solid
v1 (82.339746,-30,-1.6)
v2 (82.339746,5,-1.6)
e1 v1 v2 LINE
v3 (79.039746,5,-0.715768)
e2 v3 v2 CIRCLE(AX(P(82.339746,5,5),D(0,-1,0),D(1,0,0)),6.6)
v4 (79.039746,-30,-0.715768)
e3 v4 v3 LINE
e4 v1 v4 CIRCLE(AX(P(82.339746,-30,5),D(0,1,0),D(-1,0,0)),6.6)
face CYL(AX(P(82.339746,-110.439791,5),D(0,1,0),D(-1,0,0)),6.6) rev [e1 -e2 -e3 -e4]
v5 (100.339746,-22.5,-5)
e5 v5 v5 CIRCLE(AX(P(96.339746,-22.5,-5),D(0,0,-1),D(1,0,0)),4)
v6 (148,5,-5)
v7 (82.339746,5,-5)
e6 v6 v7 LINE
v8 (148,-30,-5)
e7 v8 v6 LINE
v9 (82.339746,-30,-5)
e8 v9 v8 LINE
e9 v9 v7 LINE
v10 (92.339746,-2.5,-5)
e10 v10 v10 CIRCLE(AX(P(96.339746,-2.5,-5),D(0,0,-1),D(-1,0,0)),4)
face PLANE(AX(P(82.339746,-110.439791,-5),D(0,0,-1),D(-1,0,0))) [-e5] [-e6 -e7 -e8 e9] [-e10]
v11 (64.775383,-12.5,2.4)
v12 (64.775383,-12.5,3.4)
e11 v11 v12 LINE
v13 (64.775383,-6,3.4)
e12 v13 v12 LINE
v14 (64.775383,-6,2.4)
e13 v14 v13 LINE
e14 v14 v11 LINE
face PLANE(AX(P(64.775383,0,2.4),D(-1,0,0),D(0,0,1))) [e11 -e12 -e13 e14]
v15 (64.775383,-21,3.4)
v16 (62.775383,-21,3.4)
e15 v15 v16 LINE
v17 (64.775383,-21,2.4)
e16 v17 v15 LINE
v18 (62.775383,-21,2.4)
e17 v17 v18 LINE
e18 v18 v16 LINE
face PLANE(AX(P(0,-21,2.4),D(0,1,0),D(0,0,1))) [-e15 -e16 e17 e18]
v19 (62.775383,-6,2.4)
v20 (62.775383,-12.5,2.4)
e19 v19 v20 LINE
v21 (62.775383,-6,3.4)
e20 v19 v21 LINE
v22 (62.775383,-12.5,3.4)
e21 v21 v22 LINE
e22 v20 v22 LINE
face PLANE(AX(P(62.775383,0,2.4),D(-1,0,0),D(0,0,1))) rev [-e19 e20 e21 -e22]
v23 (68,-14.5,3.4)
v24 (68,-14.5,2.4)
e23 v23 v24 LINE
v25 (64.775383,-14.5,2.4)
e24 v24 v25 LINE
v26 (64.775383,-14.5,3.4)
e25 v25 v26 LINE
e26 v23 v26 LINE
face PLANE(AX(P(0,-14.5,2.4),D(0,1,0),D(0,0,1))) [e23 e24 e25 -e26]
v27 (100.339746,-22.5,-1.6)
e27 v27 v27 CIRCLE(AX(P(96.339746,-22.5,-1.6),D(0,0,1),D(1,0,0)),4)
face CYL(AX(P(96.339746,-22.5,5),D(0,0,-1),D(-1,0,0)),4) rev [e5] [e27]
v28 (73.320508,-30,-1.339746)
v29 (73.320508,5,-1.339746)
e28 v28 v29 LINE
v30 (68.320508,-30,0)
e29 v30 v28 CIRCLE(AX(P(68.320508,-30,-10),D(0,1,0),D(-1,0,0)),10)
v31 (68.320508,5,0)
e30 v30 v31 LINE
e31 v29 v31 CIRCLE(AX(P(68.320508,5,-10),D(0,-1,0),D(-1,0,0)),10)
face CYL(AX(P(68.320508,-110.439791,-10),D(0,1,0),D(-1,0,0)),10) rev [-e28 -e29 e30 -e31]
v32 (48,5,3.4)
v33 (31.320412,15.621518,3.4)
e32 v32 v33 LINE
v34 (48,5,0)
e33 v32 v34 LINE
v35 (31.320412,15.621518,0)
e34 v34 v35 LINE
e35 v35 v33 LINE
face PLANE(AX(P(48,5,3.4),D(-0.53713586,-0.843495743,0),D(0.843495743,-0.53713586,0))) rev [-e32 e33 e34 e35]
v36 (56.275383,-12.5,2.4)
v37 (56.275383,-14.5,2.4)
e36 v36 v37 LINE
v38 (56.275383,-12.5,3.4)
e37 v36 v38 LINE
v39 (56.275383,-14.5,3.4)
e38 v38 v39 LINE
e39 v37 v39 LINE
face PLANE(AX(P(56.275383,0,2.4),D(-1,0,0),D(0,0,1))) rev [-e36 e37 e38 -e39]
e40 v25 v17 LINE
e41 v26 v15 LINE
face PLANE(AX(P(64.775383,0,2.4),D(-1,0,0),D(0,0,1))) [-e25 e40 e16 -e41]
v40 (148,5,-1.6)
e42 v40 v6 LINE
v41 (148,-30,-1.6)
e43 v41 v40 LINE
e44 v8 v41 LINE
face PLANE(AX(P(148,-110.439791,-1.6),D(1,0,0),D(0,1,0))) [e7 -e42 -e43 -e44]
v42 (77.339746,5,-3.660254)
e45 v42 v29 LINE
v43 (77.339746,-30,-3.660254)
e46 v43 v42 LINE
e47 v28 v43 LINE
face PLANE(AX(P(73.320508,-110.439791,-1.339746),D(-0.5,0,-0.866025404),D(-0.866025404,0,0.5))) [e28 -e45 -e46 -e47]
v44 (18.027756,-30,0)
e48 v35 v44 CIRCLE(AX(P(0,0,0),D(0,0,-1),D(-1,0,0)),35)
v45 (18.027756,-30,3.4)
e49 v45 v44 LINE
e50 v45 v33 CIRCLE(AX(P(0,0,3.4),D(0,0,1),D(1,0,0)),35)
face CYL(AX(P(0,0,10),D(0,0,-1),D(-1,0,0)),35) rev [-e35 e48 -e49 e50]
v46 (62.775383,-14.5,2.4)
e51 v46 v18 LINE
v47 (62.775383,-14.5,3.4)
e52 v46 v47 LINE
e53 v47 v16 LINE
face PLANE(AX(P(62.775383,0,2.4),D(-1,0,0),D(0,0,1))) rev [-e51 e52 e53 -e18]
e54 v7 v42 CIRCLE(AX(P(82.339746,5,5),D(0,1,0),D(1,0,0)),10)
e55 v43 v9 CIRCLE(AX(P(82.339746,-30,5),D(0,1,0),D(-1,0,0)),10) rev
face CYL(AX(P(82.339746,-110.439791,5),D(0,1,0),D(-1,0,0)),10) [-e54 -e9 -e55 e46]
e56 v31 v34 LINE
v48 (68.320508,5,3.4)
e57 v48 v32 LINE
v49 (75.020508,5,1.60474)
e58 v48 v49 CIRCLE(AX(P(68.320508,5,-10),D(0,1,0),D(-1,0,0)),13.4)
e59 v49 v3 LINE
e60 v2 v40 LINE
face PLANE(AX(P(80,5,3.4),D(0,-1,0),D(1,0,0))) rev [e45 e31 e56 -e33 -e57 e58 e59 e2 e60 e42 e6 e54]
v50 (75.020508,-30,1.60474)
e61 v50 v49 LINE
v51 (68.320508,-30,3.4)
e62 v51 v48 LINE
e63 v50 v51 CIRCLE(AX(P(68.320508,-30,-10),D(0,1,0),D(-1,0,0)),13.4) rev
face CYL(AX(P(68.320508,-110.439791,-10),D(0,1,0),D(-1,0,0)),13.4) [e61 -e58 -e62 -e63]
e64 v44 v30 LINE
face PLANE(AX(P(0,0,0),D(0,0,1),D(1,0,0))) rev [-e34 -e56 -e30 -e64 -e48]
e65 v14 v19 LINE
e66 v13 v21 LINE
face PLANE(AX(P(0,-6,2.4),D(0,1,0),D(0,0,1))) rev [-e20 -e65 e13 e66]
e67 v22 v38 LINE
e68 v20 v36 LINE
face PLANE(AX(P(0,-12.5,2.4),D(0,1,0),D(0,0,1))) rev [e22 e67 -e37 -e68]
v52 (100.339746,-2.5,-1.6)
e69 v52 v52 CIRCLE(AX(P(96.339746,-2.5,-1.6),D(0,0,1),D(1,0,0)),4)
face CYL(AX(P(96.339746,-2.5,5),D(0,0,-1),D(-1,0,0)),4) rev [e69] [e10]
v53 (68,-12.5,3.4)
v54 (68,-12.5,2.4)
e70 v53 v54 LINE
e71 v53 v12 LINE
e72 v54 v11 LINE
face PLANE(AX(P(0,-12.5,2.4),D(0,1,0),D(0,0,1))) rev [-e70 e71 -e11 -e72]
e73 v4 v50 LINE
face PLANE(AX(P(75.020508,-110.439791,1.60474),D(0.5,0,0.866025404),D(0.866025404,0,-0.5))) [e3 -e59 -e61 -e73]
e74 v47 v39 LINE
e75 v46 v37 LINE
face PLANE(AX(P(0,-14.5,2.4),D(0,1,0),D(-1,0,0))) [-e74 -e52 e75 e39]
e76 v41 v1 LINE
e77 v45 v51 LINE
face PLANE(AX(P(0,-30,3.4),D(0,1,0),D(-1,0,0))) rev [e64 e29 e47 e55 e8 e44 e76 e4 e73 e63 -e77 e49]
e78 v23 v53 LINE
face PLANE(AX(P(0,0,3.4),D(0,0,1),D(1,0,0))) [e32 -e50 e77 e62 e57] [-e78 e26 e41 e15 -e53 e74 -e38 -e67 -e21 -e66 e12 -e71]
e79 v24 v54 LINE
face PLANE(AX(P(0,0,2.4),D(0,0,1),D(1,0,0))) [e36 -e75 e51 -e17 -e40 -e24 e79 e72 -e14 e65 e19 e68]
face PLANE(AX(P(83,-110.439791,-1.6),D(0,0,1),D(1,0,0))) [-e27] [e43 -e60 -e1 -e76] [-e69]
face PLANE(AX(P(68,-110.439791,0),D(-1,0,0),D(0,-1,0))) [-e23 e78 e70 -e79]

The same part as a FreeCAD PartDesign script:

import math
import FreeCAD as App
import Part
import Sketcher
from FreeCAD import Vector
Q = App.Units.Quantity

doc = App.newDocument("Part")
body = doc.addObject("PartDesign::Body", "Body")

# Sketch on XY plane
sketch1 = doc.addObject("Sketcher::SketchObject", "Sketch")
body.addObject(sketch1)
sketch1.AttachmentSupport = (doc.XY_Plane, [""])
sketch1.MapMode = "FlatFace"
sketch1.addGeometry([
    Part.LineSegment(Vector(0, -30, 0), Vector(80, -30, 0)),  # 0
    Part.LineSegment(Vector(80, -30, 0), Vector(80, 5, 0)),  # 1
    Part.LineSegment(Vector(80, 5, 0), Vector(48, 5, 0)),  # 2
    Part.LineSegment(Vector(48, 5, 0), Vector(16, 25, 0)),  # 3
    Part.ArcOfCircle(Part.Circle(Vector(0, 0, 0), Vector(0, 0, 1), 30), math.radians(58), math.radians(270)),  # 4
], False)
sketch1.addConstraint([
    Sketcher.Constraint("Coincident", 0, 2, 1, 1),
    Sketcher.Constraint("Coincident", 1, 2, 2, 1),
    Sketcher.Constraint("Coincident", 2, 2, 3, 1),
    Sketcher.Constraint("Tangent", 3, 2, 4, 1),
    Sketcher.Constraint("Tangent", 4, 2, 0, 1),
    Sketcher.Constraint("Horizontal", 0),
    Sketcher.Constraint("Vertical", 1),
    Sketcher.Constraint("Horizontal", 2),
    Sketcher.Constraint("Coincident", 4, 3, -1, 1),
    Sketcher.Constraint("Radius", 4, 30.0),
    Sketcher.Constraint("DistanceX", 0, 1, 0, 2, 80.0),
    Sketcher.Constraint("DistanceX", 2, 2, 2, 1, 32.0),
    Sketcher.Constraint("DistanceY", 1, 1, 1, 2, 35.0),
])
pad1 = doc.addObject("PartDesign::Pad", "Pad")
body.addObject(pad1)
pad1.Profile = sketch1
pad1.Length = 3.4

# Sketch on XY plane
sketch2 = doc.addObject("Sketcher::SketchObject", "Sketch001")
body.addObject(sketch2)
sketch2.AttachmentSupport = (doc.XY_Plane, [""])
sketch2.MapMode = "FlatFace"
sketch2.AttachmentOffset = App.Placement(Vector(0, 0, 3.4), App.Rotation())
sketch2.addGeometry(Part.Circle(Vector(0, 0, 0), Vector(0, 0, 1), 5), False)
sketch2.addConstraint([
    Sketcher.Constraint("Coincident", 0, 3, -1, 1),
    Sketcher.Constraint("Diameter", 0, 10.0),
])
pocket1 = doc.addObject("PartDesign::Pocket", "Pocket")
body.addObject(pocket1)
pocket1.Profile = sketch2
pocket1.Length = 6

# Sketch on XY plane
sketch3 = doc.addObject("Sketcher::SketchObject", "Sketch002")
body.addObject(sketch3)
sketch3.AttachmentSupport = (doc.XY_Plane, [""])
sketch3.MapMode = "FlatFace"
sketch3.AttachmentOffset = App.Placement(Vector(0, 0, 3.4), App.Rotation())
sketch3.addGeometry([
    Part.ArcOfCircle(Part.Circle(Vector(0, 0, 0), Vector(0, 0, 1), 10), math.radians(90), math.radians(210)),
    Part.ArcOfCircle(Part.Circle(Vector(0, 14, 0), Vector(0, 0, 1), 4), math.radians(-90), math.radians(90)),
    Part.ArcOfCircle(Part.Circle(Vector(0, 0, 0), Vector(0, 0, 1), 18), math.radians(90), math.radians(210)),
    Part.ArcOfCircle(Part.Circle(Vector(-12.1, -7, 0), Vector(0, 0, 1), 4), math.radians(-150), math.radians(30)),
], False)
sketch3.addConstraint([
    Sketcher.Constraint("Tangent", 0, 1, 1, 1),
    Sketcher.Constraint("Tangent", 1, 2, 2, 1),
    Sketcher.Constraint("Tangent", 2, 2, 3, 1),
    Sketcher.Constraint("Tangent", 3, 2, 0, 2),
    Sketcher.Constraint("Coincident", 0, 3, -1, 1),
    Sketcher.Constraint("Coincident", 2, 3, -1, 1),
    Sketcher.Constraint("PointOnObject", 1, 3, -2),
    Sketcher.Constraint("Radius", 0, 10.0),
    Sketcher.Constraint("Radius", 1, 4.0),
    Sketcher.Constraint("DistanceY", 3, 3, -1, 1, 7.0),
])
pocket2 = doc.addObject("PartDesign::Pocket", "Pocket001")
body.addObject(pocket2)
pocket2.Profile = sketch3
pocket2.Length = 10

# Sketch on XY plane
sketch4 = doc.addObject("Sketcher::SketchObject", "Sketch003")
body.addObject(sketch4)
sketch4.AttachmentSupport = (doc.XY_Plane, [""])
sketch4.MapMode = "FlatFace"
sketch4.addGeometry(Part.Circle(Vector(0, 0, 0), Vector(0, 0, 1), 35), False)
sketch4.addConstraint([
    Sketcher.Constraint("Coincident", 0, 3, -1, 1),
    Sketcher.Constraint("Diameter", 0, 70.0),
])
pocket3 = doc.addObject("PartDesign::Pocket", "Pocket002")
body.addObject(pocket3)
pocket3.Profile = sketch4
pocket3.Length = 10
pocket3.Reversed = True

# Sketch on XY plane
sketch5 = doc.addObject("Sketcher::SketchObject", "Sketch004")
body.addObject(sketch5)
sketch5.AttachmentSupport = (doc.XY_Plane, [""])
sketch5.MapMode = "FlatFace"
sketch5.AttachmentOffset = App.Placement(Vector(0, 0, 3.4), App.Rotation())
sketch5.addGeometry([
    Part.LineSegment(Vector(62.8, -14.5, 0), Vector(62.8, -21, 0)),  # 0
    Part.LineSegment(Vector(62.8, -21, 0), Vector(64.8, -21, 0)),  # 1
    Part.LineSegment(Vector(64.8, -21, 0), Vector(64.8, -14.5, 0)),  # 2
    Part.LineSegment(Vector(64.8, -14.5, 0), Vector(71.3, -14.5, 0)),  # 3
    Part.LineSegment(Vector(71.3, -14.5, 0), Vector(71.3, -12.5, 0)),  # 4
    Part.LineSegment(Vector(71.3, -12.5, 0), Vector(64.8, -12.5, 0)),  # 5
    Part.LineSegment(Vector(64.8, -12.5, 0), Vector(64.8, -6, 0)),  # 6
    Part.LineSegment(Vector(64.8, -6, 0), Vector(62.8, -6, 0)),  # 7
    Part.LineSegment(Vector(62.8, -6, 0), Vector(62.8, -12.5, 0)),  # 8
    Part.LineSegment(Vector(62.8, -12.5, 0), Vector(56.3, -12.5, 0)),  # 9
    Part.LineSegment(Vector(56.3, -12.5, 0), Vector(56.3, -14.5, 0)),  # 10
    Part.LineSegment(Vector(56.3, -14.5, 0), Vector(62.8, -14.5, 0)),  # 11
], False)
sketch5.addConstraint([
    Sketcher.Constraint("Coincident", 0, 2, 1, 1),
    Sketcher.Constraint("Coincident", 1, 2, 2, 1),
    Sketcher.Constraint("Coincident", 2, 2, 3, 1),
    Sketcher.Constraint("Coincident", 3, 2, 4, 1),
    Sketcher.Constraint("Coincident", 4, 2, 5, 1),
    Sketcher.Constraint("Coincident", 5, 2, 6, 1),
    Sketcher.Constraint("Coincident", 6, 2, 7, 1),
    Sketcher.Constraint("Coincident", 7, 2, 8, 1),
    Sketcher.Constraint("Coincident", 8, 2, 9, 1),
    Sketcher.Constraint("Coincident", 9, 2, 10, 1),
    Sketcher.Constraint("Coincident", 10, 2, 11, 1),
    Sketcher.Constraint("Coincident", 11, 2, 0, 1),
    Sketcher.Constraint("Vertical", 0),
    Sketcher.Constraint("Horizontal", 1),
    Sketcher.Constraint("Vertical", 2),
    Sketcher.Constraint("Horizontal", 3),
    Sketcher.Constraint("Vertical", 4),
    Sketcher.Constraint("Horizontal", 5),
    Sketcher.Constraint("Vertical", 6),
    Sketcher.Constraint("Horizontal", 7),
    Sketcher.Constraint("Vertical", 8),
    Sketcher.Constraint("Horizontal", 9),
    Sketcher.Constraint("Vertical", 10),
    Sketcher.Constraint("Horizontal", 11),
    Sketcher.Constraint("Horizontal", 5, 2, 8, 2),
    Sketcher.Constraint("Horizontal", 3, 2, 10, 2),
    Sketcher.Constraint("Vertical", 2, 2, 5, 2),
    Sketcher.Constraint("Vertical", 0, 2, 7, 2),
    Sketcher.Constraint("Equal", 5, 9),
    Sketcher.Constraint("Equal", 11, 0),
    Sketcher.Constraint("Equal", 7, 4),
    Sketcher.Constraint("Equal", 2, 6),
    Sketcher.Constraint("DistanceX", 1, 1, 1, 2, 2.0),
    Sketcher.Constraint("DistanceX", 3, 1, 3, 2, 6.5),
    Sketcher.Constraint("DistanceY", 0, 2, -1, 1, 21.0),
    Sketcher.Constraint("DistanceX", -1, 1, 0, 2, 62.775383),
])
pocket4 = doc.addObject("PartDesign::Pocket", "Pocket003")
body.addObject(pocket4)
pocket4.Profile = sketch5
pocket4.Length = 1

# Sketch on XY plane
sketch6 = doc.addObject("Sketcher::SketchObject", "Sketch005")
body.addObject(sketch6)
sketch6.AttachmentSupport = (doc.XY_Plane, [""])
sketch6.MapMode = "FlatFace"
sketch6.addGeometry([
    Part.LineSegment(Vector(80, 5, 0), Vector(80, -30, 0)),
    Part.LineSegment(Vector(80, -30, 0), Vector(68, -30, 0)),
    Part.LineSegment(Vector(68, -30, 0), Vector(68, 5, 0)),
    Part.LineSegment(Vector(68, 5, 0), Vector(80, 5, 0)),
], False)
sketch6.addConstraint([
    Sketcher.Constraint("Coincident", 0, 2, 1, 1),
    Sketcher.Constraint("Coincident", 1, 2, 2, 1),
    Sketcher.Constraint("Coincident", 2, 2, 3, 1),
    Sketcher.Constraint("Coincident", 3, 2, 0, 1),
    Sketcher.Constraint("Vertical", 0),
    Sketcher.Constraint("Horizontal", 1),
    Sketcher.Constraint("Vertical", 2),
    Sketcher.Constraint("Horizontal", 3),
    Sketcher.Constraint("DistanceX", 1, 2, 1, 1, 12.0),
    Sketcher.Constraint("DistanceY", 0, 2, 0, 1, 35.0),
    Sketcher.Constraint("DistanceX", -1, 1, 0, 2, 80.0),
    Sketcher.Constraint("DistanceY", 0, 2, -1, 1, 30.0),
])
pocket5 = doc.addObject("PartDesign::Pocket", "Pocket004")
body.addObject(pocket5)
pocket5.Profile = sketch6
pocket5.Type = "UpToFirst"
pocket5.Reversed = True

# Sketch on XZ plane
sketch7 = doc.addObject("Sketcher::SketchObject", "Sketch006")
body.addObject(sketch7)
sketch7.AttachmentSupport = (doc.XZ_Plane, [""])
sketch7.MapMode = "FlatFace"
sketch7.AttachmentOffset = App.Placement(Vector(0, 0, -5), App.Rotation())
sketch7.addGeometry([
    Part.LineSegment(Vector(68.32, 0, 0), Vector(68, 0, 0)),  # 0
    Part.LineSegment(Vector(68, 0, 0), Vector(68, 3.4, 0)),  # 1
    Part.LineSegment(Vector(68, 3.4, 0), Vector(68.32, 3.4, 0)),  # 2
    Part.ArcOfCircle(Part.Circle(Vector(68.32, -10, 0), Vector(0, 0, 1), 13.4), math.radians(60), math.radians(90)),  # 3
    Part.LineSegment(Vector(75.02, 1.6, 0), Vector(79.04, -0.72, 0)),  # 4
    Part.ArcOfCircle(Part.Circle(Vector(82.34, 5, 0), Vector(0, 0, 1), 6.6), math.radians(-120), math.radians(-90)),  # 5
    Part.LineSegment(Vector(82.34, -1.6, 0), Vector(148, -1.6, 0)),  # 6
    Part.LineSegment(Vector(148, -1.6, 0), Vector(148, -5, 0)),  # 7
    Part.LineSegment(Vector(148, -5, 0), Vector(82.34, -5, 0)),  # 8
    Part.ArcOfCircle(Part.Circle(Vector(82.34, 5, 0), Vector(0, 0, 1), 10), math.radians(-120), math.radians(-90)),  # 9
    Part.LineSegment(Vector(77.34, -3.66, 0), Vector(73.32, -1.34, 0)),  # 10
    Part.ArcOfCircle(Part.Circle(Vector(68.32, -10, 0), Vector(0, 0, 1), 10), math.radians(60), math.radians(90)),  # 11
], False)
sketch7.addConstraint([
    Sketcher.Constraint("Coincident", 0, 2, 1, 1),
    Sketcher.Constraint("Coincident", 1, 2, 2, 1),
    Sketcher.Constraint("Tangent", 2, 2, 3, 2),
    Sketcher.Constraint("Tangent", 3, 1, 4, 1),
    Sketcher.Constraint("Tangent", 4, 2, 5, 1),
    Sketcher.Constraint("Tangent", 5, 2, 6, 1),
    Sketcher.Constraint("Coincident", 6, 2, 7, 1),
    Sketcher.Constraint("Coincident", 7, 2, 8, 1),
    Sketcher.Constraint("Tangent", 8, 2, 9, 2),
    Sketcher.Constraint("Tangent", 9, 1, 10, 1),
    Sketcher.Constraint("Tangent", 10, 2, 11, 1),
    Sketcher.Constraint("Tangent", 11, 2, 0, 1),
    Sketcher.Constraint("Horizontal", 0),
    Sketcher.Constraint("Vertical", 1),
    Sketcher.Constraint("Horizontal", 2),
    Sketcher.Constraint("Horizontal", 6),
    Sketcher.Constraint("Vertical", 7),
    Sketcher.Constraint("Horizontal", 8),
    Sketcher.Constraint("Coincident", 9, 3, 5, 3),
    Sketcher.Constraint("Coincident", 11, 3, 3, 3),
    Sketcher.Constraint("Equal", 9, 11),
    Sketcher.Constraint("PointOnObject", 0, 2, -1),
    Sketcher.Constraint("Parallel", 4, 10),
    Sketcher.Constraint("Radius", 9, 10.0),
    Sketcher.Constraint("Radius", 3, 13.4),
    Sketcher.Constraint("Angle", 4, Q("-30 deg")),
    Sketcher.Constraint("DistanceY", -1, 1, 5, 3, 5.0),
    Sketcher.Constraint("DistanceX", -1, 1, 0, 2, 68.0),
    Sketcher.Constraint("DistanceX", -1, 1, 6, 2, 148.0),
    Sketcher.Constraint("DistanceX", 0, 2, 0, 1, 0.320508),
])
pad2 = doc.addObject("PartDesign::Pad", "Pad001")
body.addObject(pad2)
pad2.Profile = sketch7
pad2.Length = 35

# Sketch on XY plane
sketch8 = doc.addObject("Sketcher::SketchObject", "Sketch007")
body.addObject(sketch8)
sketch8.AttachmentSupport = (doc.XY_Plane, [""])
sketch8.MapMode = "FlatFace"
sketch8.AttachmentOffset = App.Placement(Vector(0, 0, -5), App.Rotation())
sketch8.addGeometry([
    Part.Circle(Vector(96.3, -2.5, 0), Vector(0, 0, 1), 4),
    Part.Circle(Vector(96.3, -22.5, 0), Vector(0, 0, 1), 4),
], False)
sketch8.addConstraint([
    Sketcher.Constraint("Equal", 0, 1),
    Sketcher.Constraint("Vertical", 0, 3, 1, 3),
    Sketcher.Constraint("Diameter", 0, 8.0),
    Sketcher.Constraint("DistanceY", 1, 3, 0, 3, 20.0),
    Sketcher.Constraint("DistanceY", 0, 3, -1, 1, 2.5),
    Sketcher.Constraint("DistanceX", -1, 1, 0, 3, 96.339746),
])
pocket6 = doc.addObject("PartDesign::Pocket", "Pocket005")
body.addObject(pocket6)
pocket6.Profile = sketch8
pocket6.Length = 10
pocket6.Reversed = True

doc.recompute()
